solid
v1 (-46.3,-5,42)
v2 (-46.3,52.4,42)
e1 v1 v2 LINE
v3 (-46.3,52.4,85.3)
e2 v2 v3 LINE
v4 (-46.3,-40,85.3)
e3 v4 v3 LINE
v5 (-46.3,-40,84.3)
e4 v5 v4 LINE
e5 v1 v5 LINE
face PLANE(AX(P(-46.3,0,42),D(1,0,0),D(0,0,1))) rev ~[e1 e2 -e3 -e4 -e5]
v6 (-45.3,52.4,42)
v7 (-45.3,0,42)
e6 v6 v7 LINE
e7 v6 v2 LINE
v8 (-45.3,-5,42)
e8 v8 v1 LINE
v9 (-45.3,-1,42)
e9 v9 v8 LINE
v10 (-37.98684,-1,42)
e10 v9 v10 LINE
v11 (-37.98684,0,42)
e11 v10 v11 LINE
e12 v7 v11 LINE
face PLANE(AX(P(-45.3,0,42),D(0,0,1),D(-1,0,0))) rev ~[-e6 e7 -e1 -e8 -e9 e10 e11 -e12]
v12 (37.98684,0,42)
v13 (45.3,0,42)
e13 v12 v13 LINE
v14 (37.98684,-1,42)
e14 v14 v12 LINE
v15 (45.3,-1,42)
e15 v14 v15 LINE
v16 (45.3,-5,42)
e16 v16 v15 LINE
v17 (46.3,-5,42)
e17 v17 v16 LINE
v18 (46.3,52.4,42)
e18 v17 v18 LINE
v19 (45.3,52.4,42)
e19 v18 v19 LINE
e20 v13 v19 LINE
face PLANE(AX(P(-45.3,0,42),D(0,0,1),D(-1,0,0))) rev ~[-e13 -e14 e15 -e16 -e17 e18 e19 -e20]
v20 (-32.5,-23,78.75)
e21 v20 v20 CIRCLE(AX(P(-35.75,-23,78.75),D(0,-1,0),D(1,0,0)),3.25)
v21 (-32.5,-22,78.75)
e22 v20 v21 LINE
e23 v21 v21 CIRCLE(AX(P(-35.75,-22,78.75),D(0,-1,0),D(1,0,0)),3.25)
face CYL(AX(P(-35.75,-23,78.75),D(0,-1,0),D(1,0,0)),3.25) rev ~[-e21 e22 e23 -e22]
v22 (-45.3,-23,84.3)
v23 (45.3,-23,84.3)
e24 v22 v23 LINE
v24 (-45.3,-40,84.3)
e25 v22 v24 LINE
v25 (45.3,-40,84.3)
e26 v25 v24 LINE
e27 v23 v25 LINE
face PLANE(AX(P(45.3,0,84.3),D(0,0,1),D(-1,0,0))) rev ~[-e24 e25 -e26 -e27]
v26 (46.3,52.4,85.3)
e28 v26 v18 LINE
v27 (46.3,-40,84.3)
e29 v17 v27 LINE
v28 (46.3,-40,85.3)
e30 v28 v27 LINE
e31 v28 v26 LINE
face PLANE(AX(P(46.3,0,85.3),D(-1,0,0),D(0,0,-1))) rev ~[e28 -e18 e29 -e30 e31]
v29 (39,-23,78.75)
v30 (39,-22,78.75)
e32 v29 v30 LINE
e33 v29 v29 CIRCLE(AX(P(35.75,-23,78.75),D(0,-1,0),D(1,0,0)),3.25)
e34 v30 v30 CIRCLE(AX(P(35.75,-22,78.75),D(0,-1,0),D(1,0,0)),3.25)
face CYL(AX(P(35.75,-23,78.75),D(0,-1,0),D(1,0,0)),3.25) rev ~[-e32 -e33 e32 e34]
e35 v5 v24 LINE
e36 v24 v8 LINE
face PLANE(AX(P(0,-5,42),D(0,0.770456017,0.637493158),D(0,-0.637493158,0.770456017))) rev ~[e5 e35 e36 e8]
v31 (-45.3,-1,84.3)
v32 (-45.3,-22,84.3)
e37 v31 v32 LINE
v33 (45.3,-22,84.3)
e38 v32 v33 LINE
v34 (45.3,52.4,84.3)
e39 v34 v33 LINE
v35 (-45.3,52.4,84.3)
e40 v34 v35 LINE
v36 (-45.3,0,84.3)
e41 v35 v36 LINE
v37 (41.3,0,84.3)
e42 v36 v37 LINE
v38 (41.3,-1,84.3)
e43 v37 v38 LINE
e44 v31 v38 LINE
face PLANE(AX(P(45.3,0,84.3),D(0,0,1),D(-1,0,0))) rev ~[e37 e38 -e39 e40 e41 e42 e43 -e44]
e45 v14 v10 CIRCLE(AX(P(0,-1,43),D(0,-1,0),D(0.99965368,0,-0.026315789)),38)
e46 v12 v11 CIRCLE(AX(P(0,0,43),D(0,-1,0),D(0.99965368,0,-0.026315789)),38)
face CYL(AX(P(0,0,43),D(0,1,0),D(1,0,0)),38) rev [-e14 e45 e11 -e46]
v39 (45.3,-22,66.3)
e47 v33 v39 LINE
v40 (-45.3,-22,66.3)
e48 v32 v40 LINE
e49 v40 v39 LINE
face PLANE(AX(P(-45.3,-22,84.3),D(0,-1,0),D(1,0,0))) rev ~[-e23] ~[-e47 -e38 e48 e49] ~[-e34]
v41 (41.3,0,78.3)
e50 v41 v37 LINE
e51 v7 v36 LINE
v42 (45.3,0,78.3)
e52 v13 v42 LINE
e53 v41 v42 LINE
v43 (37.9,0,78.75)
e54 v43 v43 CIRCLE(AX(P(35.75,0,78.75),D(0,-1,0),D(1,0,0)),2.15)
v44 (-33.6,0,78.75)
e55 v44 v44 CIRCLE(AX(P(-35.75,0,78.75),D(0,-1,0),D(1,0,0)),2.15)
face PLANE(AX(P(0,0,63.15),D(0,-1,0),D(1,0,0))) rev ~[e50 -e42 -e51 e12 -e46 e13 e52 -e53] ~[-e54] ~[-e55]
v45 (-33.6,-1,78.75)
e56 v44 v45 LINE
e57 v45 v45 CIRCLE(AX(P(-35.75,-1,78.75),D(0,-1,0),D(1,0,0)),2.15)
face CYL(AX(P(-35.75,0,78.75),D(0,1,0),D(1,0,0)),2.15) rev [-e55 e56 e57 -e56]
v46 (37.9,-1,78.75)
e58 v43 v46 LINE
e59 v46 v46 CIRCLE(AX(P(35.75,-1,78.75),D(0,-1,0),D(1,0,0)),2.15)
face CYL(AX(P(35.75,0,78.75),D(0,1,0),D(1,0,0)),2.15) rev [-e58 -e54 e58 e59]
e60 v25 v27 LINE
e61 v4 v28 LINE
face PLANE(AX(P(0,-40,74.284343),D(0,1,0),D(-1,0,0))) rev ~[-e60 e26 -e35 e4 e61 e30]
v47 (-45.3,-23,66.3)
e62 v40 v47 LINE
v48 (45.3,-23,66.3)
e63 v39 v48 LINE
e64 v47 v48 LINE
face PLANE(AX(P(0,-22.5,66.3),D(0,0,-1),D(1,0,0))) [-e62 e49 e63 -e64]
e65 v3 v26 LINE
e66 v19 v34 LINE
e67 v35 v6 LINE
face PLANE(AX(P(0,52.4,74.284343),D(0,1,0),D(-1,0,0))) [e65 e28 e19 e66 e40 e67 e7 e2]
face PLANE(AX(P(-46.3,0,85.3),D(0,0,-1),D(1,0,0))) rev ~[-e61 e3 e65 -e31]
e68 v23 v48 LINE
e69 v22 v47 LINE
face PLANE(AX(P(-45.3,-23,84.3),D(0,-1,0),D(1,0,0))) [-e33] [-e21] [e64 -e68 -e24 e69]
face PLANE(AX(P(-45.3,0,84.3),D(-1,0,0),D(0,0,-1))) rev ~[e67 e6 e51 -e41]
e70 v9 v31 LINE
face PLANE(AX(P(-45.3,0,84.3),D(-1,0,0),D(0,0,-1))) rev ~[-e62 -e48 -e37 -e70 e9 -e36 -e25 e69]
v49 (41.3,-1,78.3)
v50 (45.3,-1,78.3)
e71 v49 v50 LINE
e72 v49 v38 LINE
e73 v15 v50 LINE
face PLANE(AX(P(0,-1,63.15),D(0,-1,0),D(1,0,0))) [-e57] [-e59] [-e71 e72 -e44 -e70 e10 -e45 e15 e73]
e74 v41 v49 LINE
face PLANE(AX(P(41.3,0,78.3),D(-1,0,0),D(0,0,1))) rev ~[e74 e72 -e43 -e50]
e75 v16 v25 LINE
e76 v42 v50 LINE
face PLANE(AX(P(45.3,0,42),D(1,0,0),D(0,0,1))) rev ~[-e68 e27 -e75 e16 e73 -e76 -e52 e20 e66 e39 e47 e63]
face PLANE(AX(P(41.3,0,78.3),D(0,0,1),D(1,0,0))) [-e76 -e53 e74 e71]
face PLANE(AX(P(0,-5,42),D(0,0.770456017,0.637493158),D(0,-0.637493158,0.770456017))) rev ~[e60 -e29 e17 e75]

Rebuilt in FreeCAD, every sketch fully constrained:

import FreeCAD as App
import Part
import Sketcher
from FreeCAD import Vector


def add_polygon(sketch, points):
    """Adds a closed chain of lines whose ends are joined by coincident constraints."""
    first, n = sketch.GeometryCount, len(points)
    for a, b in zip(points, points[1:] + points[:1]):
        sketch.addGeometry(Part.LineSegment(App.Vector(*a, 0), App.Vector(*b, 0)), False)
    for i in range(n):
        sketch.addConstraint(Sketcher.Constraint("Coincident", first + i, 2, first + (i + 1) % n, 1))

doc = App.newDocument("Part")
params = doc.addObject("Spreadsheet::Sheet", "Params")
for row, (alias, value) in enumerate([
    ("sketch1_width", "1 mm"),
    ("sketch1_width2", "90.6 mm"),
    ("sketch1_height", "42.3 mm"),
    ("sketch1_height2", "43.3 mm"),
    ("pad1_length", "40 mm"),
    ("sketch2_width", "1 mm"),
    ("sketch2_width2", "90.6 mm"),
    ("sketch2_height", "42.3 mm"),
    ("sketch2_height2", "43.3 mm"),
    ("pad2_length", "52.4 mm"),
    ("sketch3_width", "90.6 mm"),
    ("sketch3_height", "42.3 mm"),
    ("pad3_length", "1 mm"),
    ("sketch4_diameter", "76 mm"),
    ("pocket1_length", "1 mm"),
    ("sketch5_width", "35 mm"),
    ("sketch5_height", "42.3 mm"),
    ("pocket2_length", "92.6 mm"),
    ("sketch6_diameter", "4.3 mm"),
    ("pocket3_length", "1 mm"),
    ("sketch7_height", "1 mm"),
    ("sketch7_width", "90.6 mm"),
    ("pad4_length", "18 mm"),
    ("sketch8_diameter", "6.5 mm"),
    ("pocket4_length", "1 mm"),
    ("sketch9_width", "4 mm"),
    ("sketch9_height", "6 mm"),
    ("pocket5_length", "1 mm"),
], start=1):
    params.set(f"A{row}", alias)
    params.set(f"B{row}", "=" + value)
    params.setAlias(f"B{row}", alias)

body = doc.addObject("PartDesign::Body", "Body")

# Sketch on XZ plane
sketch1 = body.newObject("Sketcher::SketchObject", "Sketch")
sketch1.AttachmentSupport = (doc.getObject("XZ_Plane"), [""])
sketch1.MapMode = "FlatFace"
add_polygon(sketch1, [(-46.3, 42), (-45.3, 42), (-45.3, 84.3), (45.3, 84.3), (45.3, 42), (46.3, 42), (46.3, 85.3), (-46.3, 85.3)])  # lines 0-7
sketch1.addConstraint(Sketcher.Constraint("Horizontal", 0))
sketch1.addConstraint(Sketcher.Constraint("Vertical", 1))
sketch1.addConstraint(Sketcher.Constraint("Horizontal", 2))
sketch1.addConstraint(Sketcher.Constraint("Vertical", 3))
sketch1.addConstraint(Sketcher.Constraint("Horizontal", 4))
sketch1.addConstraint(Sketcher.Constraint("Vertical", 5))
sketch1.addConstraint(Sketcher.Constraint("Horizontal", 6))
sketch1.addConstraint(Sketcher.Constraint("Vertical", 7))
sketch1.addConstraint(Sketcher.Constraint("Symmetric", 0, 2, 3, 2, -2))
sketch1.addConstraint(Sketcher.Constraint("Equal", 0, 4))
sketch1.addConstraint(Sketcher.Constraint("DistanceX", 0, 1, 0, 2, 1.0))
sketch1.addConstraint(Sketcher.Constraint("DistanceX", 2, 1, 2, 2, 90.6))
sketch1.addConstraint(Sketcher.Constraint("DistanceY", 1, 1, 1, 2, 42.3))
sketch1.addConstraint(Sketcher.Constraint("DistanceY", 5, 1, 5, 2, 43.3))
sketch1.addConstraint(Sketcher.Constraint("DistanceY", -1, 1, 0, 2, 42.0))
sketch1.setExpression("Constraints[18]", "Params.sketch1_width")
sketch1.setExpression("Constraints[19]", "Params.sketch1_width2")
sketch1.setExpression("Constraints[20]", "Params.sketch1_height")
sketch1.setExpression("Constraints[21]", "Params.sketch1_height2")
pad1 = body.newObject("PartDesign::Pad", "Pad")
pad1.Profile = sketch1
pad1.setExpression("Length", "Params.pad1_length")

# Sketch on XZ plane
sketch2 = body.newObject("Sketcher::SketchObject", "Sketch001")
sketch2.AttachmentSupport = (doc.getObject("XZ_Plane"), [""])
sketch2.MapMode = "FlatFace"
add_polygon(sketch2, [(-46.3, 42), (-45.3, 42), (-45.3, 84.3), (45.3, 84.3), (45.3, 42), (46.3, 42), (46.3, 85.3), (-46.3, 85.3)])  # lines 0-7
sketch2.addConstraint(Sketcher.Constraint("Horizontal", 0))
sketch2.addConstraint(Sketcher.Constraint("Vertical", 1))
sketch2.addConstraint(Sketcher.Constraint("Horizontal", 2))
sketch2.addConstraint(Sketcher.Constraint("Vertical", 3))
sketch2.addConstraint(Sketcher.Constraint("Horizontal", 4))
sketch2.addConstraint(Sketcher.Constraint("Vertical", 5))
sketch2.addConstraint(Sketcher.Constraint("Horizontal", 6))
sketch2.addConstraint(Sketcher.Constraint("Vertical", 7))
sketch2.addConstraint(Sketcher.Constraint("Symmetric", 0, 2, 3, 2, -2))
sketch2.addConstraint(Sketcher.Constraint("Equal", 0, 4))
sketch2.addConstraint(Sketcher.Constraint("DistanceX", 0, 1, 0, 2, 1.0))
sketch2.addConstraint(Sketcher.Constraint("DistanceX", 2, 1, 2, 2, 90.6))
sketch2.addConstraint(Sketcher.Constraint("DistanceY", 1, 1, 1, 2, 42.3))
sketch2.addConstraint(Sketcher.Constraint("DistanceY", 5, 1, 5, 2, 43.3))
sketch2.addConstraint(Sketcher.Constraint("DistanceY", -1, 1, 0, 2, 42.0))
sketch2.setExpression("Constraints[18]", "Params.sketch2_width")
sketch2.setExpression("Constraints[19]", "Params.sketch2_width2")
sketch2.setExpression("Constraints[20]", "Params.sketch2_height")
sketch2.setExpression("Constraints[21]", "Params.sketch2_height2")
pad2 = body.newObject("PartDesign::Pad", "Pad001")
pad2.Profile = sketch2
pad2.setExpression("Length", "Params.pad2_length")
pad2.Reversed = True

# Sketch on XZ plane
sketch3 = body.newObject("Sketcher::SketchObject", "Sketch002")
sketch3.AttachmentSupport = (doc.getObject("XZ_Plane"), [""])
sketch3.MapMode = "FlatFace"
add_polygon(sketch3, [(-45, 84), (-45, 42), (45, 42), (45, 84)])  # lines 0-3
sketch3.addConstraint(Sketcher.Constraint("Vertical", 0))
sketch3.addConstraint(Sketcher.Constraint("Horizontal", 1))
sketch3.addConstraint(Sketcher.Constraint("Vertical", 2))
sketch3.addConstraint(Sketcher.Constraint("Horizontal", 3))
sketch3.addConstraint(Sketcher.Constraint("DistanceX", 1, 1, 1, 2, 90.6))
sketch3.addConstraint(Sketcher.Constraint("DistanceY", 0, 2, 0, 1, 42.3))
sketch3.addConstraint(Sketcher.Constraint("DistanceY", -1, 1, 0, 2, 42.0))
sketch3.addConstraint(Sketcher.Constraint("DistanceX", 0, 2, -1, 1, 45.3))
sketch3.setExpression("Constraints[8]", "Params.sketch3_width")
sketch3.setExpression("Constraints[9]", "Params.sketch3_height")
pad3 = body.newObject("PartDesign::Pad", "Pad002")
pad3.Profile = sketch3
pad3.setExpression("Length", "Params.pad3_length")

# Sketch on XZ plane
sketch4 = body.newObject("Sketcher::SketchObject", "Sketch003")
sketch4.AttachmentSupport = (doc.getObject("XZ_Plane"), [""])
sketch4.MapMode = "FlatFace"
sketch4.addGeometry(Part.Circle(Vector(0, 43, 0), Vector(0, 0, 1), 38), False)
sketch4.addConstraint(Sketcher.Constraint("PointOnObject", 0, 3, -2))
sketch4.addConstraint(Sketcher.Constraint("Diameter", 0, 76.0))
sketch4.addConstraint(Sketcher.Constraint("DistanceY", -1, 1, 0, 3, 43.0))
sketch4.setExpression("Constraints[1]", "Params.sketch4_diameter")
pocket1 = body.newObject("PartDesign::Pocket", "Pocket")
pocket1.Profile = sketch4
pocket1.setExpression("Length", "Params.pocket1_length")
pocket1.Reversed = True

# Sketch on YZ plane
sketch5 = body.newObject("Sketcher::SketchObject", "Sketch004")
sketch5.AttachmentSupport = (doc.getObject("YZ_Plane"), [""])
sketch5.MapMode = "FlatFace"
add_polygon(sketch5, [(-5, 42), (-40, 84), (-40, 42)])  # lines 0-2
sketch5.addConstraint(Sketcher.Constraint("Vertical", 1))
sketch5.addConstraint(Sketcher.Constraint("Horizontal", 2))
sketch5.addConstraint(Sketcher.Constraint("DistanceX", 2, 1, 2, 2, 35.0))
sketch5.addConstraint(Sketcher.Constraint("DistanceY", 1, 2, 1, 1, 42.3))
sketch5.addConstraint(Sketcher.Constraint("DistanceX", 0, 2, -1, 1, 40.0))
sketch5.addConstraint(Sketcher.Constraint("DistanceY", -1, 1, 1, 2, 42.0))
sketch5.setExpression("Constraints[5]", "Params.sketch5_width")
sketch5.setExpression("Constraints[6]", "Params.sketch5_height")
pocket2 = body.newObject("PartDesign::Pocket", "Pocket001")
pocket2.Profile = sketch5
pocket2.setExpression("Length", "Params.pocket2_length")
pocket2.Midplane = True

# Sketch on XZ plane
sketch6 = body.newObject("Sketcher::SketchObject", "Sketch005")
sketch6.AttachmentSupport = (doc.getObject("XZ_Plane"), [""])
sketch6.MapMode = "FlatFace"
sketch6.addGeometry(Part.Circle(Vector(-35.8, 78.8, 0), Vector(0, 0, 1), 2.1), False)
sketch6.addGeometry(Part.Circle(Vector(35.8, 78.8, 0), Vector(0, 0, 1), 2.1), False)
sketch6.addConstraint(Sketcher.Constraint("Equal", 0, 1))
sketch6.addConstraint(Sketcher.Constraint("Symmetric", 0, 3, 1, 3, -2))
sketch6.addConstraint(Sketcher.Constraint("Diameter", 0, 4.3))
sketch6.addConstraint(Sketcher.Constraint("DistanceX", 0, 3, 1, 3, 71.5))
sketch6.addConstraint(Sketcher.Constraint("DistanceY", -1, 1, 0, 3, 78.75))
sketch6.setExpression("Constraints[2]", "Params.sketch6_diameter")
pocket3 = body.newObject("PartDesign::Pocket", "Pocket002")
pocket3.Profile = sketch6
pocket3.setExpression("Length", "Params.pocket3_length")
pocket3.Reversed = True

# Sketch on XY plane
sketch7 = body.newObject("Sketcher::SketchObject", "Sketch006")
sketch7.AttachmentSupport = (doc.getObject("XY_Plane"), [""])
sketch7.MapMode = "FlatFace"
sketch7.AttachmentOffset = App.Placement(Vector(0, 0, 84.3), App.Rotation())
add_polygon(sketch7, [(-45.3, -23), (-45.3, -22), (45.3, -22), (45.3, -23)])  # lines 0-3
sketch7.addConstraint(Sketcher.Constraint("Vertical", 0))
sketch7.addConstraint(Sketcher.Constraint("Horizontal", 1))
sketch7.addConstraint(Sketcher.Constraint("Vertical", 2))
sketch7.addConstraint(Sketcher.Constraint("Horizontal", 3))
sketch7.addConstraint(Sketcher.Constraint("DistanceY", 0, 1, 0, 2, 1.0))
sketch7.addConstraint(Sketcher.Constraint("DistanceX", 1, 1, 1, 2, 90.6))
sketch7.addConstraint(Sketcher.Constraint("DistanceY", 0, 2, -1, 1, 22.0))
sketch7.addConstraint(Sketcher.Constraint("DistanceX", 0, 2, -1, 1, 45.3))
sketch7.setExpression("Constraints[8]", "Params.sketch7_height")
sketch7.setExpression("Constraints[9]", "Params.sketch7_width")
pad4 = body.newObject("PartDesign::Pad", "Pad003")
pad4.Profile = sketch7
pad4.setExpression("Length", "Params.pad4_length")
pad4.Reversed = True

# Sketch on XZ plane
sketch8 = body.newObject("Sketcher::SketchObject", "Sketch007")
sketch8.AttachmentSupport = (doc.getObject("XZ_Plane"), [""])
sketch8.MapMode = "FlatFace"
sketch8.AttachmentOffset = App.Placement(Vector(0, 0, 23), App.Rotation())
sketch8.addGeometry(Part.Circle(Vector(-35.8, 78.8, 0), Vector(0, 0, 1), 3.2), False)
sketch8.addGeometry(Part.Circle(Vector(35.8, 78.8, 0), Vector(0, 0, 1), 3.2), False)
sketch8.addConstraint(Sketcher.Constraint("Equal", 0, 1))
sketch8.addConstraint(Sketcher.Constraint("Symmetric", 0, 3, 1, 3, -2))
sketch8.addConstraint(Sketcher.Constraint("Diameter", 0, 6.5))
sketch8.addConstraint(Sketcher.Constraint("DistanceX", 0, 3, 1, 3, 71.5))
sketch8.addConstraint(Sketcher.Constraint("DistanceY", -1, 1, 0, 3, 78.75))
sketch8.setExpression("Constraints[2]", "Params.sketch8_diameter")
pocket4 = body.newObject("PartDesign::Pocket", "Pocket003")
pocket4.Profile = sketch8
pocket4.setExpression("Length", "Params.pocket4_length")

# Sketch on XZ plane
sketch9 = body.newObject("Sketcher::SketchObject", "Sketch008")
sketch9.AttachmentSupport = (doc.getObject("XZ_Plane"), [""])
sketch9.MapMode = "FlatFace"
add_polygon(sketch9, [(41.3, 84.3), (41.3, 78.3), (45.3, 78.3), (45.3, 84.3)])  # lines 0-3
sketch9.addConstraint(Sketcher.Constraint("Vertical", 0))
sketch9.addConstraint(Sketcher.Constraint("Horizontal", 1))
sketch9.addConstraint(Sketcher.Constraint("Vertical", 2))
sketch9.addConstraint(Sketcher.Constraint("Horizontal", 3))
sketch9.addConstraint(Sketcher.Constraint("DistanceX", 1, 1, 1, 2, 4.0))
sketch9.addConstraint(Sketcher.Constraint("DistanceY", 0, 2, 0, 1, 6.0))
sketch9.addConstraint(Sketcher.Constraint("DistanceX", -1, 1, 0, 2, 41.3))
sketch9.addConstraint(Sketcher.Constraint("DistanceY", -1, 1, 0, 2, 78.3))
sketch9.setExpression("Constraints[8]", "Params.sketch9_width")
sketch9.setExpression("Constraints[9]", "Params.sketch9_height")
pocket5 = body.newObject("PartDesign::Pocket", "Pocket004")
pocket5.Profile = sketch9
pocket5.setExpression("Length", "Params.pocket5_length")
pocket5.Reversed = True

doc.recompute()
